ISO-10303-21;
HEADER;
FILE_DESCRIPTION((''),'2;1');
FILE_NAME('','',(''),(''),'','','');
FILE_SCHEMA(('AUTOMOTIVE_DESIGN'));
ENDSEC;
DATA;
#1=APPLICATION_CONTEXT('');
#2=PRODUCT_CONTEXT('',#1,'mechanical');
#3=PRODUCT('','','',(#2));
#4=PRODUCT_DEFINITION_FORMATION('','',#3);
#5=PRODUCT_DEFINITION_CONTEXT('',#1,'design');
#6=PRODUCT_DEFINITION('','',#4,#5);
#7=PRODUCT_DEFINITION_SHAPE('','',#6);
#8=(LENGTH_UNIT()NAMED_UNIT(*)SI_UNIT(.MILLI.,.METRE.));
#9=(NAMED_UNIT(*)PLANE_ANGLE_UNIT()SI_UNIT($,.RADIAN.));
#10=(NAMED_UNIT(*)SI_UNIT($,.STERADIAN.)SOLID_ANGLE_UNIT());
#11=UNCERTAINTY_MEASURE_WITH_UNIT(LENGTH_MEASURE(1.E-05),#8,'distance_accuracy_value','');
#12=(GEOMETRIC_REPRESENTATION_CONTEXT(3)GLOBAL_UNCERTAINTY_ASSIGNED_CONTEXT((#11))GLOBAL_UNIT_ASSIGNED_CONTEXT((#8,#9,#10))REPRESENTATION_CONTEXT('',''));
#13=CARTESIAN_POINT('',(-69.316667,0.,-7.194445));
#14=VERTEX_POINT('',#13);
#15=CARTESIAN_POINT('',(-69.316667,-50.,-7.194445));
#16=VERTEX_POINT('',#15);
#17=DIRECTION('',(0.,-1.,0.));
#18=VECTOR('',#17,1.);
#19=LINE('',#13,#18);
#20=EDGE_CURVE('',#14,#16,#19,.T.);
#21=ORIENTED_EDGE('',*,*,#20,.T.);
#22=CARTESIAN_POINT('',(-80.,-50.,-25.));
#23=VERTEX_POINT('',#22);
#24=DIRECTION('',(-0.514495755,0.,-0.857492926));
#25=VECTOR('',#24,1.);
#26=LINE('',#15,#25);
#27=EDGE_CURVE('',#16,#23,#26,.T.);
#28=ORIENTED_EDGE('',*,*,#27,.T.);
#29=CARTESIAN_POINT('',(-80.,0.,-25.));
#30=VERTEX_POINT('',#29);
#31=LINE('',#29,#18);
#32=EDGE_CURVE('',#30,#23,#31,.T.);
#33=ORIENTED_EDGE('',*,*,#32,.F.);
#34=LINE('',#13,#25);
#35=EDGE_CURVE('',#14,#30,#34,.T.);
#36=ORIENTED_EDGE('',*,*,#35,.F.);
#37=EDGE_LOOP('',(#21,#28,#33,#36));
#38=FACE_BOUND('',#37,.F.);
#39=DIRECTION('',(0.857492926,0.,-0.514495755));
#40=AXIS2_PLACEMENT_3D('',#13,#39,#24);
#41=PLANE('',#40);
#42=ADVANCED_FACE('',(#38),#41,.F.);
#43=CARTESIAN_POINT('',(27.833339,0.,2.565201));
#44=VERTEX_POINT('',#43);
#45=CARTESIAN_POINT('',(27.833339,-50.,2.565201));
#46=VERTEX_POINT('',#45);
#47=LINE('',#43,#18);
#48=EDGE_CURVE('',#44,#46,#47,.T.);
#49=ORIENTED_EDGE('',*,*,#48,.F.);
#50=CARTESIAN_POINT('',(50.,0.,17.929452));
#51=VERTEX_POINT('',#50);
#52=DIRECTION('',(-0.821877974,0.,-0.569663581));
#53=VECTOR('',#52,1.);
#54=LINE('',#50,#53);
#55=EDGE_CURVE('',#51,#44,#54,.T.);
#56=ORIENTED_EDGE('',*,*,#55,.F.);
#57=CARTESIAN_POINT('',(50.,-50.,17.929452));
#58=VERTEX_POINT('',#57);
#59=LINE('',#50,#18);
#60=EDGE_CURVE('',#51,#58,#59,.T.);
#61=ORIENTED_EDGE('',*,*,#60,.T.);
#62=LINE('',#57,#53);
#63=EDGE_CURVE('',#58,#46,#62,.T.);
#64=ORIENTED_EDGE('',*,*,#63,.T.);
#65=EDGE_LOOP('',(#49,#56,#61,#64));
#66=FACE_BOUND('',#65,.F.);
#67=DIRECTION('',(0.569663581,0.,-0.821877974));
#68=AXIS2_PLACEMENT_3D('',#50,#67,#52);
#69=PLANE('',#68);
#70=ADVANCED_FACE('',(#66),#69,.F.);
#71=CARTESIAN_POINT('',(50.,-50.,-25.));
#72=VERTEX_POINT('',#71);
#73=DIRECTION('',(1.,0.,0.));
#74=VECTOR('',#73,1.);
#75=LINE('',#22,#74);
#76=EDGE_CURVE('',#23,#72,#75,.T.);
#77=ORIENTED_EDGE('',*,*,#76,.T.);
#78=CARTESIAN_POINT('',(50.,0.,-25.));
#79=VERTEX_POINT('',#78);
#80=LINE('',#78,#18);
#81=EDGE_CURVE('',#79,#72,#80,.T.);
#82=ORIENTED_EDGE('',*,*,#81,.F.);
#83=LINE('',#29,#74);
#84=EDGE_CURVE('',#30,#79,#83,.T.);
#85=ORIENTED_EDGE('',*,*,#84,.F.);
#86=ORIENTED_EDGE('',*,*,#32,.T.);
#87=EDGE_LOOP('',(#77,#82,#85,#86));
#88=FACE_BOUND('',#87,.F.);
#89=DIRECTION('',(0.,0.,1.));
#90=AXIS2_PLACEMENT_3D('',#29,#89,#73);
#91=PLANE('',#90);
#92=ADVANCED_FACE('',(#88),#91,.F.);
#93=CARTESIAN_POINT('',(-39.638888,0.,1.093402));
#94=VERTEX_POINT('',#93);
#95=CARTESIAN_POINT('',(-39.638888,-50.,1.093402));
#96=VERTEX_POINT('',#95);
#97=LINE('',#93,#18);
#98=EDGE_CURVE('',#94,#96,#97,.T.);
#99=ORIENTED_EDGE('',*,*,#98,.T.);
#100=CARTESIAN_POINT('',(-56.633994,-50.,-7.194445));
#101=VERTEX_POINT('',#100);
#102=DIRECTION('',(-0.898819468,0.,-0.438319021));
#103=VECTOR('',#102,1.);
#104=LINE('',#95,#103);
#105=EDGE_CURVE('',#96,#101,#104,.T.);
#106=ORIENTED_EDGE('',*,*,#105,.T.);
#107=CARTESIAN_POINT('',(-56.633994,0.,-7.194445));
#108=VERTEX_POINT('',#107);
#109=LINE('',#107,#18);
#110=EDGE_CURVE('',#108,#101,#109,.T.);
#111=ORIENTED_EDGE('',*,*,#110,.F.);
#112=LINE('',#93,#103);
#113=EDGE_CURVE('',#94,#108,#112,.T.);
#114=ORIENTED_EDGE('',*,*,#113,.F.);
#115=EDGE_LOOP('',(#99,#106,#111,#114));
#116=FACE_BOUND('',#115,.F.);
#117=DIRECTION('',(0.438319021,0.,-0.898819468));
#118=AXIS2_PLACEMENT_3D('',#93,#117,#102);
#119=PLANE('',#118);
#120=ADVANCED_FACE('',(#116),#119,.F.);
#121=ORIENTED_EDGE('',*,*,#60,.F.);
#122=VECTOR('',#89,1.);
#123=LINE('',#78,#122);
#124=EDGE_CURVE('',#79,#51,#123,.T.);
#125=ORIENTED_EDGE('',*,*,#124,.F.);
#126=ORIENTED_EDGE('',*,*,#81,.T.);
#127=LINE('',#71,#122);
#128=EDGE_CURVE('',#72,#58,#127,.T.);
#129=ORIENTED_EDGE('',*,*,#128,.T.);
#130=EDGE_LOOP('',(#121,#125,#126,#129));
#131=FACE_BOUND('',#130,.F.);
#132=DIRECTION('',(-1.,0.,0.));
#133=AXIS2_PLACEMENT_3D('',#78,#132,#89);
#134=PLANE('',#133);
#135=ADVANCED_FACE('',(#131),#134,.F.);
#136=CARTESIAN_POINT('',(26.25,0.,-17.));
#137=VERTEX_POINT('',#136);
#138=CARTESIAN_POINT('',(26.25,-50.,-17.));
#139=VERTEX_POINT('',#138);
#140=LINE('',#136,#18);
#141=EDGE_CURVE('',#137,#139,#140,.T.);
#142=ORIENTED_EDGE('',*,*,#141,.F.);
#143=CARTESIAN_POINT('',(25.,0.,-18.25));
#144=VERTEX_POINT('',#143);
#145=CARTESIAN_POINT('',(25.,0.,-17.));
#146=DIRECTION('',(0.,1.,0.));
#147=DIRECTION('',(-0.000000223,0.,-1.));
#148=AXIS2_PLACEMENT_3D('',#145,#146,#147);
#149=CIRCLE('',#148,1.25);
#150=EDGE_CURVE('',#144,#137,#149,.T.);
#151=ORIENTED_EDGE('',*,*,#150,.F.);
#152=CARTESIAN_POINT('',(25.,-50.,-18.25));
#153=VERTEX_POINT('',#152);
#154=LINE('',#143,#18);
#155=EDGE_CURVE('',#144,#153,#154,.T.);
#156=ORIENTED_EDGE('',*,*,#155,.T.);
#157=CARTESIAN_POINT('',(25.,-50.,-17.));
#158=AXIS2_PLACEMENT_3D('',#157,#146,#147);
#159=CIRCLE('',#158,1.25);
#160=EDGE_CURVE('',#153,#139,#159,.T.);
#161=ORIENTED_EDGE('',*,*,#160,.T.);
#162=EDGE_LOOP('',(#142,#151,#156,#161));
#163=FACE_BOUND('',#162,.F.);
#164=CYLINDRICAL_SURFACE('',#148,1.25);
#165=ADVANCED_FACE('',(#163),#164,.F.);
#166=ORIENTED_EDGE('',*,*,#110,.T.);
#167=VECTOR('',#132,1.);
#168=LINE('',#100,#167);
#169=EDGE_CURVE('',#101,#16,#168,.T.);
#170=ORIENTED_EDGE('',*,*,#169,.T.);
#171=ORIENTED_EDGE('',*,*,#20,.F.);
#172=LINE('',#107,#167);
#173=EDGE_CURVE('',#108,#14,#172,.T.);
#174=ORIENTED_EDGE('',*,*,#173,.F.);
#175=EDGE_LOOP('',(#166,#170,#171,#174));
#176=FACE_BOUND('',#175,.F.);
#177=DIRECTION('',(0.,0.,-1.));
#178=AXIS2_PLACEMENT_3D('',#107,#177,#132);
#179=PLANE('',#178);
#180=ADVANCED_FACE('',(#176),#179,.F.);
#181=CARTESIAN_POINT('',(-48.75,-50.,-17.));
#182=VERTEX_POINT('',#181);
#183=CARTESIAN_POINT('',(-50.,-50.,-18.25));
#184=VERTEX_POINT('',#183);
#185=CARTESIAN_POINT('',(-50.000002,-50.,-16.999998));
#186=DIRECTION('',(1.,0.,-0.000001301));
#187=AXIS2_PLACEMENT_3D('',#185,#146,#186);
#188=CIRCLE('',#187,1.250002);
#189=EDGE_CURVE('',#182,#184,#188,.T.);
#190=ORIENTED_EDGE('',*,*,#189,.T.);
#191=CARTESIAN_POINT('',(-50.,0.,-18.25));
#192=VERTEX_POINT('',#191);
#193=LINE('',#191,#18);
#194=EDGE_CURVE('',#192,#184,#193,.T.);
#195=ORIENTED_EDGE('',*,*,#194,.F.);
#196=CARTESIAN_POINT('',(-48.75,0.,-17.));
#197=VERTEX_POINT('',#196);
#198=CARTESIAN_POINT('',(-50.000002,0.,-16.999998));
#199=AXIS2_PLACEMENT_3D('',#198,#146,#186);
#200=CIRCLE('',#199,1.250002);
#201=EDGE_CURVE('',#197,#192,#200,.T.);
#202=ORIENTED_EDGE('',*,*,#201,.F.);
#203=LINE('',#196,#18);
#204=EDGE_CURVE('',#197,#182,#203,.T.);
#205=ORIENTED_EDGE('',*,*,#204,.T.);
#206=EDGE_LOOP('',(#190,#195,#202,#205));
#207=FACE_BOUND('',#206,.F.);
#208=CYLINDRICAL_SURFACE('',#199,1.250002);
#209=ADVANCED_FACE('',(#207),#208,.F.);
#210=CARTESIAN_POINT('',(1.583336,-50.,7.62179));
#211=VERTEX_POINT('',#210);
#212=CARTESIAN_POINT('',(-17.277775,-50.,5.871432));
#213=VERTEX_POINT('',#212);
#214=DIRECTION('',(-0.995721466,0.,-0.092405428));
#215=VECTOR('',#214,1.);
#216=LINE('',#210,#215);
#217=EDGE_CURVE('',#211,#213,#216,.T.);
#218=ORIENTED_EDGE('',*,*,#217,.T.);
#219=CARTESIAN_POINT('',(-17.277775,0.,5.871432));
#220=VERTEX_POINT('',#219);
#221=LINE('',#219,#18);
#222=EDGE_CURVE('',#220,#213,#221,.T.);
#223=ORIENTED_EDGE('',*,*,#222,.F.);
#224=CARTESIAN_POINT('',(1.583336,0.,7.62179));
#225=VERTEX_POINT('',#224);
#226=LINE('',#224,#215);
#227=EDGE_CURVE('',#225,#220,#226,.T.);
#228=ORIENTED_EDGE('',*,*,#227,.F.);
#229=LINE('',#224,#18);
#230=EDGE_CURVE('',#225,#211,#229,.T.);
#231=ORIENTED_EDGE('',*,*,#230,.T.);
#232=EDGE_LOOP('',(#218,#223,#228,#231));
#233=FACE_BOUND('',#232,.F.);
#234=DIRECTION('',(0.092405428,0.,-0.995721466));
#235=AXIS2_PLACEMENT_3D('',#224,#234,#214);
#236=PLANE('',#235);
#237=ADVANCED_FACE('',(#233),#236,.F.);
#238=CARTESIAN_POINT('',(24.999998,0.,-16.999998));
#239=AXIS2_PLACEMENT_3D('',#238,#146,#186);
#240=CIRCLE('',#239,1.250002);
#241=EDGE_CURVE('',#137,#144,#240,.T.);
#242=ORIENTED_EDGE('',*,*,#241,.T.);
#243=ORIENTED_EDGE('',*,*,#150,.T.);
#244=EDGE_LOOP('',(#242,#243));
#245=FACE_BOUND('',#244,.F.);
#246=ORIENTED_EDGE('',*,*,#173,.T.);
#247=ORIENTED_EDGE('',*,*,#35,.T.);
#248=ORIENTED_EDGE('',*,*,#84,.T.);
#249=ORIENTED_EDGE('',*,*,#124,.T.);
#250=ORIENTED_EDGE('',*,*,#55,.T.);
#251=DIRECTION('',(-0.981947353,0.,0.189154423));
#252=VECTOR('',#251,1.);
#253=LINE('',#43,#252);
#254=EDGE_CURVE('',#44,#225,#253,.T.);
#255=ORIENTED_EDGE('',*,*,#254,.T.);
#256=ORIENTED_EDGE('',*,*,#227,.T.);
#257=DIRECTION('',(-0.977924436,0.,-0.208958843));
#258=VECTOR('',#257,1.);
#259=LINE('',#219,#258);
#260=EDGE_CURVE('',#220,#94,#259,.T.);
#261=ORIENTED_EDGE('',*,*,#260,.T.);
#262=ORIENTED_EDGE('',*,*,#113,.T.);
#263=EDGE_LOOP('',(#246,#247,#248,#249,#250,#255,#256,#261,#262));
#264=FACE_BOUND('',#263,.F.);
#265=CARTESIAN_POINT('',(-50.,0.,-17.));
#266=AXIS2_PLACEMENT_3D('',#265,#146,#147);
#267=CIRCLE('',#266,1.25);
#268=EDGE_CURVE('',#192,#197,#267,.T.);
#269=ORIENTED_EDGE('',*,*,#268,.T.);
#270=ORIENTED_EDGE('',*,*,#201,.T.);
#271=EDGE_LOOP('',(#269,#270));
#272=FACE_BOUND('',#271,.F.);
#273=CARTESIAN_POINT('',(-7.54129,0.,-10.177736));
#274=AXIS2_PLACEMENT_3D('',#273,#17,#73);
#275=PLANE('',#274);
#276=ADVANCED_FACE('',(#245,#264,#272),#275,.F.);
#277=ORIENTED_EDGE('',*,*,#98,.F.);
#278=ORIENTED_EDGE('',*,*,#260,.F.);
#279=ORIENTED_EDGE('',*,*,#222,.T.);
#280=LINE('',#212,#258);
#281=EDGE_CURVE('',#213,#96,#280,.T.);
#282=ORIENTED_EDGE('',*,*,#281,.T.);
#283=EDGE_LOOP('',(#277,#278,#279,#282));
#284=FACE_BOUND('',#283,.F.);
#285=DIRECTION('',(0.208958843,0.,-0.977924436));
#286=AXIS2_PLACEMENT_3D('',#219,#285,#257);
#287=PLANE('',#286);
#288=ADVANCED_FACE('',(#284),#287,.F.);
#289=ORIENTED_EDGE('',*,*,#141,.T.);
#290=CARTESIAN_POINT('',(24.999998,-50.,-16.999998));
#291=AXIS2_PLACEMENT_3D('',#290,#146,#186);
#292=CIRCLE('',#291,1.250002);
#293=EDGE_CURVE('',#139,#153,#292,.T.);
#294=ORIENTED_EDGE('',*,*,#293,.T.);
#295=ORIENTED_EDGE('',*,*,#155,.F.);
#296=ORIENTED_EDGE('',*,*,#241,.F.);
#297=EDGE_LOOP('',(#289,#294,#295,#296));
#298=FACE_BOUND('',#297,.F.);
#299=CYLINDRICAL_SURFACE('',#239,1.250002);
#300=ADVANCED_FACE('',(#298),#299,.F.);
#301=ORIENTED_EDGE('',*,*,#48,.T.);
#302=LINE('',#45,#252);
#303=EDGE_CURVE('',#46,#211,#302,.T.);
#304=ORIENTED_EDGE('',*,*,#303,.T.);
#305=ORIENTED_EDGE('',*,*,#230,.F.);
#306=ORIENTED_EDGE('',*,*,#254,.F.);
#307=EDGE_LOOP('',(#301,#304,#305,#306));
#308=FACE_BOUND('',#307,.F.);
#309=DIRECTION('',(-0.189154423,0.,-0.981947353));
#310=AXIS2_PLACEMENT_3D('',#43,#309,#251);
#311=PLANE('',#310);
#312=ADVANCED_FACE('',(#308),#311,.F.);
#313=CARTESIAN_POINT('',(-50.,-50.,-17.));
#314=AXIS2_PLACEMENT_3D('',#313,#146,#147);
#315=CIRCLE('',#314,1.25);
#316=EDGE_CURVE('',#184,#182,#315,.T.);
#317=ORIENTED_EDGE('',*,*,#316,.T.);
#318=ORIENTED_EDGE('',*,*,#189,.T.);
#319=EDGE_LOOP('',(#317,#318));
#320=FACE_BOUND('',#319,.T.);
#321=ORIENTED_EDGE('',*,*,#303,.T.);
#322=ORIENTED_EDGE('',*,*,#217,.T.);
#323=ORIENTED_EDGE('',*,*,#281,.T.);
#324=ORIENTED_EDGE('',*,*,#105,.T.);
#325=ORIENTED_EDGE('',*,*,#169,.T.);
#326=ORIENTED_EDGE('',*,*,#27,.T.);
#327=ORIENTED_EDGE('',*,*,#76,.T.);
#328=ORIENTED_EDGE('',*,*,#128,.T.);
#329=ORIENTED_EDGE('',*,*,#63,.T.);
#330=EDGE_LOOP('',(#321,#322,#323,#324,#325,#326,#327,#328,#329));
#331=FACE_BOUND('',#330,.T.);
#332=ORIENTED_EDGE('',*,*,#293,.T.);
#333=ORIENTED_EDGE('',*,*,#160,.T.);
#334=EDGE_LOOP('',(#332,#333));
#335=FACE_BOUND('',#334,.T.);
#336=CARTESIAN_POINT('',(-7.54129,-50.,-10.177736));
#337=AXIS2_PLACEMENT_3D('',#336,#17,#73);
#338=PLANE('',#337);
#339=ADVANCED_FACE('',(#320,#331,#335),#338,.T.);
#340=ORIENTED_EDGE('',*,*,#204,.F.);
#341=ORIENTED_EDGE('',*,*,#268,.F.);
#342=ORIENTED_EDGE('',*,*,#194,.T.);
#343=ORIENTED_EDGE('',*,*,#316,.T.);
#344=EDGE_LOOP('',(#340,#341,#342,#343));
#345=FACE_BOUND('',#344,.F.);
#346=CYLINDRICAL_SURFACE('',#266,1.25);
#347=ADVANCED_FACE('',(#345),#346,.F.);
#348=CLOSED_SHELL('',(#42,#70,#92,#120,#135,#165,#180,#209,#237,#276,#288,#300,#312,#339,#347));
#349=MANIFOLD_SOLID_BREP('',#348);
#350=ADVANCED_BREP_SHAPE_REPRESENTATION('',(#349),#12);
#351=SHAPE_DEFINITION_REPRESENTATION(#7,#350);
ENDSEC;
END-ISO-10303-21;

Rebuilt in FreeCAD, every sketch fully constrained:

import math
import FreeCAD as App
import Part
import Sketcher
from FreeCAD import Vector


def add_polygon(sketch, points):
    """Adds a closed chain of lines whose ends are joined by coincident constraints."""
    first, n = sketch.GeometryCount, len(points)
    for a, b in zip(points, points[1:] + points[:1]):
        sketch.addGeometry(Part.LineSegment(App.Vector(*a, 0), App.Vector(*b, 0)), False)
    for i in range(n):
        sketch.addConstraint(Sketcher.Constraint("Coincident", first + i, 2, first + (i + 1) % n, 1))

doc = App.newDocument("Part")
params = doc.addObject("Spreadsheet::Sheet", "Params")
for row, (alias, value) in enumerate([
    ("sketch1_width", "130 mm"),
    ("sketch1_radius", "1.250002 mm"),
    ("pad1_length", "50 mm"),
], start=1):
    params.set(f"A{row}", alias)
    params.set(f"B{row}", "=" + value)
    params.setAlias(f"B{row}", alias)

body = doc.addObject("PartDesign::Body", "Body")

sketch1 = doc.addObject("Sketcher::SketchObject", "Sketch")
body.addObject(sketch1)
sketch1.AttachmentSupport = (doc.XZ_Plane, [""])
sketch1.MapMode = "FlatFace"
add_polygon(sketch1, [(50, -25), (50, 17.9), (27.8, 2.6), (1.6, 7.6), (-17.3, 5.9), (-39.6, 1.1), (-56.6, -7.2), (-69.3, -7.2), (-80, -25)])
sketch1.addGeometry(Part.ArcOfCircle(Part.Circle(Vector(-50, -17, 0), Vector(0, 0, 1), 1.3), math.radians(-90), math.radians(0)), False)
sketch1.addGeometry(Part.ArcOfCircle(Part.Circle(Vector(-50, -17, 0), Vector(0, 0, 1), 1.2), math.radians(0), math.radians(270)), False)
sketch1.addGeometry(Part.ArcOfCircle(Part.Circle(Vector(25, -17, 0), Vector(0, 0, 1), 1.3), math.radians(-90), math.radians(0)), False)
sketch1.addGeometry(Part.ArcOfCircle(Part.Circle(Vector(25, -17, 0), Vector(0, 0, 1), 1.2), math.radians(0), math.radians(270)), False)
sketch1.addConstraint([
    Sketcher.Constraint("Tangent", 9, 1, 10, 2),
    Sketcher.Constraint("Coincident", 10, 1, 9, 2),
    Sketcher.Constraint("Tangent", 11, 1, 12, 2),
    Sketcher.Constraint("Coincident", 12, 1, 11, 2),
    Sketcher.Constraint("Vertical", 0),
    Sketcher.Constraint("Horizontal", 6),
    Sketcher.Constraint("Horizontal", 8),
    Sketcher.Constraint("Equal", 10, 11),
    Sketcher.Constraint("Horizontal", 10, 3, 11, 3),
    Sketcher.Constraint("Horizontal", 12, 3, 10, 1),
    Sketcher.Constraint("Horizontal", 10, 1, 12, 1),
    Sketcher.Constraint("Vertical", 10, 3, 9, 1),
    Sketcher.Constraint("Vertical", 12, 3, 11, 1),
    Sketcher.Constraint("DistanceX", 8, 1, 8, 2, 130.0),
    Sketcher.Constraint("Radius", 9, 1.250002),
    Sketcher.Constraint("DistanceX", 9, 3, -1, 1, 50.000002),
    Sketcher.Constraint("DistanceY", 9, 3, -1, 1, 16.999998),
    Sketcher.Constraint("DistanceX", -1, 1, 11, 3, 24.999998),
    Sketcher.Constraint("DistanceX", -1, 1, 0, 2, 50.0),
    Sketcher.Constraint("DistanceY", 7, 2, -1, 1, 25.0),
    Sketcher.Constraint("DistanceY", 0, 1, 0, 2, 42.929452),
    Sketcher.Constraint("DistanceY", -1, 1, 1, 2, 2.565201),
    Sketcher.Constraint("DistanceY", 9, 3, 4, 2, 18.0934),
    Sketcher.Constraint("Distance", 4, 22.86589),
    Sketcher.Constraint("DistanceX", 6, 2, 6, 1, 12.682673),
    Sketcher.Constraint("DistanceX", -1, 1, 1, 2, 27.833339),
    Sketcher.Constraint("DistanceY", -1, 1, 2, 2, 7.62179),
    Sketcher.Constraint("DistanceX", 3, 2, 2, 2, 18.861111),
    Sketcher.Constraint("DistanceY", 9, 3, 3, 2, 22.87143),
    Sketcher.Constraint("DistanceX", 10, 3, 4, 2, 10.361112),
    Sketcher.Constraint("DistanceX", 5, 2, 3, 2, 39.356219),
    Sketcher.Constraint("Distance", 5, 18.908253),
])
sketch1.setExpression("Constraints[22]", "Params.sketch1_width")
sketch1.setExpression("Constraints[23]", "Params.sketch1_radius")
pad1 = doc.addObject("PartDesign::Pad", "Pad")
body.addObject(pad1)
pad1.Profile = sketch1
pad1.setExpression("Length", "Params.pad1_length")

doc.recompute()
